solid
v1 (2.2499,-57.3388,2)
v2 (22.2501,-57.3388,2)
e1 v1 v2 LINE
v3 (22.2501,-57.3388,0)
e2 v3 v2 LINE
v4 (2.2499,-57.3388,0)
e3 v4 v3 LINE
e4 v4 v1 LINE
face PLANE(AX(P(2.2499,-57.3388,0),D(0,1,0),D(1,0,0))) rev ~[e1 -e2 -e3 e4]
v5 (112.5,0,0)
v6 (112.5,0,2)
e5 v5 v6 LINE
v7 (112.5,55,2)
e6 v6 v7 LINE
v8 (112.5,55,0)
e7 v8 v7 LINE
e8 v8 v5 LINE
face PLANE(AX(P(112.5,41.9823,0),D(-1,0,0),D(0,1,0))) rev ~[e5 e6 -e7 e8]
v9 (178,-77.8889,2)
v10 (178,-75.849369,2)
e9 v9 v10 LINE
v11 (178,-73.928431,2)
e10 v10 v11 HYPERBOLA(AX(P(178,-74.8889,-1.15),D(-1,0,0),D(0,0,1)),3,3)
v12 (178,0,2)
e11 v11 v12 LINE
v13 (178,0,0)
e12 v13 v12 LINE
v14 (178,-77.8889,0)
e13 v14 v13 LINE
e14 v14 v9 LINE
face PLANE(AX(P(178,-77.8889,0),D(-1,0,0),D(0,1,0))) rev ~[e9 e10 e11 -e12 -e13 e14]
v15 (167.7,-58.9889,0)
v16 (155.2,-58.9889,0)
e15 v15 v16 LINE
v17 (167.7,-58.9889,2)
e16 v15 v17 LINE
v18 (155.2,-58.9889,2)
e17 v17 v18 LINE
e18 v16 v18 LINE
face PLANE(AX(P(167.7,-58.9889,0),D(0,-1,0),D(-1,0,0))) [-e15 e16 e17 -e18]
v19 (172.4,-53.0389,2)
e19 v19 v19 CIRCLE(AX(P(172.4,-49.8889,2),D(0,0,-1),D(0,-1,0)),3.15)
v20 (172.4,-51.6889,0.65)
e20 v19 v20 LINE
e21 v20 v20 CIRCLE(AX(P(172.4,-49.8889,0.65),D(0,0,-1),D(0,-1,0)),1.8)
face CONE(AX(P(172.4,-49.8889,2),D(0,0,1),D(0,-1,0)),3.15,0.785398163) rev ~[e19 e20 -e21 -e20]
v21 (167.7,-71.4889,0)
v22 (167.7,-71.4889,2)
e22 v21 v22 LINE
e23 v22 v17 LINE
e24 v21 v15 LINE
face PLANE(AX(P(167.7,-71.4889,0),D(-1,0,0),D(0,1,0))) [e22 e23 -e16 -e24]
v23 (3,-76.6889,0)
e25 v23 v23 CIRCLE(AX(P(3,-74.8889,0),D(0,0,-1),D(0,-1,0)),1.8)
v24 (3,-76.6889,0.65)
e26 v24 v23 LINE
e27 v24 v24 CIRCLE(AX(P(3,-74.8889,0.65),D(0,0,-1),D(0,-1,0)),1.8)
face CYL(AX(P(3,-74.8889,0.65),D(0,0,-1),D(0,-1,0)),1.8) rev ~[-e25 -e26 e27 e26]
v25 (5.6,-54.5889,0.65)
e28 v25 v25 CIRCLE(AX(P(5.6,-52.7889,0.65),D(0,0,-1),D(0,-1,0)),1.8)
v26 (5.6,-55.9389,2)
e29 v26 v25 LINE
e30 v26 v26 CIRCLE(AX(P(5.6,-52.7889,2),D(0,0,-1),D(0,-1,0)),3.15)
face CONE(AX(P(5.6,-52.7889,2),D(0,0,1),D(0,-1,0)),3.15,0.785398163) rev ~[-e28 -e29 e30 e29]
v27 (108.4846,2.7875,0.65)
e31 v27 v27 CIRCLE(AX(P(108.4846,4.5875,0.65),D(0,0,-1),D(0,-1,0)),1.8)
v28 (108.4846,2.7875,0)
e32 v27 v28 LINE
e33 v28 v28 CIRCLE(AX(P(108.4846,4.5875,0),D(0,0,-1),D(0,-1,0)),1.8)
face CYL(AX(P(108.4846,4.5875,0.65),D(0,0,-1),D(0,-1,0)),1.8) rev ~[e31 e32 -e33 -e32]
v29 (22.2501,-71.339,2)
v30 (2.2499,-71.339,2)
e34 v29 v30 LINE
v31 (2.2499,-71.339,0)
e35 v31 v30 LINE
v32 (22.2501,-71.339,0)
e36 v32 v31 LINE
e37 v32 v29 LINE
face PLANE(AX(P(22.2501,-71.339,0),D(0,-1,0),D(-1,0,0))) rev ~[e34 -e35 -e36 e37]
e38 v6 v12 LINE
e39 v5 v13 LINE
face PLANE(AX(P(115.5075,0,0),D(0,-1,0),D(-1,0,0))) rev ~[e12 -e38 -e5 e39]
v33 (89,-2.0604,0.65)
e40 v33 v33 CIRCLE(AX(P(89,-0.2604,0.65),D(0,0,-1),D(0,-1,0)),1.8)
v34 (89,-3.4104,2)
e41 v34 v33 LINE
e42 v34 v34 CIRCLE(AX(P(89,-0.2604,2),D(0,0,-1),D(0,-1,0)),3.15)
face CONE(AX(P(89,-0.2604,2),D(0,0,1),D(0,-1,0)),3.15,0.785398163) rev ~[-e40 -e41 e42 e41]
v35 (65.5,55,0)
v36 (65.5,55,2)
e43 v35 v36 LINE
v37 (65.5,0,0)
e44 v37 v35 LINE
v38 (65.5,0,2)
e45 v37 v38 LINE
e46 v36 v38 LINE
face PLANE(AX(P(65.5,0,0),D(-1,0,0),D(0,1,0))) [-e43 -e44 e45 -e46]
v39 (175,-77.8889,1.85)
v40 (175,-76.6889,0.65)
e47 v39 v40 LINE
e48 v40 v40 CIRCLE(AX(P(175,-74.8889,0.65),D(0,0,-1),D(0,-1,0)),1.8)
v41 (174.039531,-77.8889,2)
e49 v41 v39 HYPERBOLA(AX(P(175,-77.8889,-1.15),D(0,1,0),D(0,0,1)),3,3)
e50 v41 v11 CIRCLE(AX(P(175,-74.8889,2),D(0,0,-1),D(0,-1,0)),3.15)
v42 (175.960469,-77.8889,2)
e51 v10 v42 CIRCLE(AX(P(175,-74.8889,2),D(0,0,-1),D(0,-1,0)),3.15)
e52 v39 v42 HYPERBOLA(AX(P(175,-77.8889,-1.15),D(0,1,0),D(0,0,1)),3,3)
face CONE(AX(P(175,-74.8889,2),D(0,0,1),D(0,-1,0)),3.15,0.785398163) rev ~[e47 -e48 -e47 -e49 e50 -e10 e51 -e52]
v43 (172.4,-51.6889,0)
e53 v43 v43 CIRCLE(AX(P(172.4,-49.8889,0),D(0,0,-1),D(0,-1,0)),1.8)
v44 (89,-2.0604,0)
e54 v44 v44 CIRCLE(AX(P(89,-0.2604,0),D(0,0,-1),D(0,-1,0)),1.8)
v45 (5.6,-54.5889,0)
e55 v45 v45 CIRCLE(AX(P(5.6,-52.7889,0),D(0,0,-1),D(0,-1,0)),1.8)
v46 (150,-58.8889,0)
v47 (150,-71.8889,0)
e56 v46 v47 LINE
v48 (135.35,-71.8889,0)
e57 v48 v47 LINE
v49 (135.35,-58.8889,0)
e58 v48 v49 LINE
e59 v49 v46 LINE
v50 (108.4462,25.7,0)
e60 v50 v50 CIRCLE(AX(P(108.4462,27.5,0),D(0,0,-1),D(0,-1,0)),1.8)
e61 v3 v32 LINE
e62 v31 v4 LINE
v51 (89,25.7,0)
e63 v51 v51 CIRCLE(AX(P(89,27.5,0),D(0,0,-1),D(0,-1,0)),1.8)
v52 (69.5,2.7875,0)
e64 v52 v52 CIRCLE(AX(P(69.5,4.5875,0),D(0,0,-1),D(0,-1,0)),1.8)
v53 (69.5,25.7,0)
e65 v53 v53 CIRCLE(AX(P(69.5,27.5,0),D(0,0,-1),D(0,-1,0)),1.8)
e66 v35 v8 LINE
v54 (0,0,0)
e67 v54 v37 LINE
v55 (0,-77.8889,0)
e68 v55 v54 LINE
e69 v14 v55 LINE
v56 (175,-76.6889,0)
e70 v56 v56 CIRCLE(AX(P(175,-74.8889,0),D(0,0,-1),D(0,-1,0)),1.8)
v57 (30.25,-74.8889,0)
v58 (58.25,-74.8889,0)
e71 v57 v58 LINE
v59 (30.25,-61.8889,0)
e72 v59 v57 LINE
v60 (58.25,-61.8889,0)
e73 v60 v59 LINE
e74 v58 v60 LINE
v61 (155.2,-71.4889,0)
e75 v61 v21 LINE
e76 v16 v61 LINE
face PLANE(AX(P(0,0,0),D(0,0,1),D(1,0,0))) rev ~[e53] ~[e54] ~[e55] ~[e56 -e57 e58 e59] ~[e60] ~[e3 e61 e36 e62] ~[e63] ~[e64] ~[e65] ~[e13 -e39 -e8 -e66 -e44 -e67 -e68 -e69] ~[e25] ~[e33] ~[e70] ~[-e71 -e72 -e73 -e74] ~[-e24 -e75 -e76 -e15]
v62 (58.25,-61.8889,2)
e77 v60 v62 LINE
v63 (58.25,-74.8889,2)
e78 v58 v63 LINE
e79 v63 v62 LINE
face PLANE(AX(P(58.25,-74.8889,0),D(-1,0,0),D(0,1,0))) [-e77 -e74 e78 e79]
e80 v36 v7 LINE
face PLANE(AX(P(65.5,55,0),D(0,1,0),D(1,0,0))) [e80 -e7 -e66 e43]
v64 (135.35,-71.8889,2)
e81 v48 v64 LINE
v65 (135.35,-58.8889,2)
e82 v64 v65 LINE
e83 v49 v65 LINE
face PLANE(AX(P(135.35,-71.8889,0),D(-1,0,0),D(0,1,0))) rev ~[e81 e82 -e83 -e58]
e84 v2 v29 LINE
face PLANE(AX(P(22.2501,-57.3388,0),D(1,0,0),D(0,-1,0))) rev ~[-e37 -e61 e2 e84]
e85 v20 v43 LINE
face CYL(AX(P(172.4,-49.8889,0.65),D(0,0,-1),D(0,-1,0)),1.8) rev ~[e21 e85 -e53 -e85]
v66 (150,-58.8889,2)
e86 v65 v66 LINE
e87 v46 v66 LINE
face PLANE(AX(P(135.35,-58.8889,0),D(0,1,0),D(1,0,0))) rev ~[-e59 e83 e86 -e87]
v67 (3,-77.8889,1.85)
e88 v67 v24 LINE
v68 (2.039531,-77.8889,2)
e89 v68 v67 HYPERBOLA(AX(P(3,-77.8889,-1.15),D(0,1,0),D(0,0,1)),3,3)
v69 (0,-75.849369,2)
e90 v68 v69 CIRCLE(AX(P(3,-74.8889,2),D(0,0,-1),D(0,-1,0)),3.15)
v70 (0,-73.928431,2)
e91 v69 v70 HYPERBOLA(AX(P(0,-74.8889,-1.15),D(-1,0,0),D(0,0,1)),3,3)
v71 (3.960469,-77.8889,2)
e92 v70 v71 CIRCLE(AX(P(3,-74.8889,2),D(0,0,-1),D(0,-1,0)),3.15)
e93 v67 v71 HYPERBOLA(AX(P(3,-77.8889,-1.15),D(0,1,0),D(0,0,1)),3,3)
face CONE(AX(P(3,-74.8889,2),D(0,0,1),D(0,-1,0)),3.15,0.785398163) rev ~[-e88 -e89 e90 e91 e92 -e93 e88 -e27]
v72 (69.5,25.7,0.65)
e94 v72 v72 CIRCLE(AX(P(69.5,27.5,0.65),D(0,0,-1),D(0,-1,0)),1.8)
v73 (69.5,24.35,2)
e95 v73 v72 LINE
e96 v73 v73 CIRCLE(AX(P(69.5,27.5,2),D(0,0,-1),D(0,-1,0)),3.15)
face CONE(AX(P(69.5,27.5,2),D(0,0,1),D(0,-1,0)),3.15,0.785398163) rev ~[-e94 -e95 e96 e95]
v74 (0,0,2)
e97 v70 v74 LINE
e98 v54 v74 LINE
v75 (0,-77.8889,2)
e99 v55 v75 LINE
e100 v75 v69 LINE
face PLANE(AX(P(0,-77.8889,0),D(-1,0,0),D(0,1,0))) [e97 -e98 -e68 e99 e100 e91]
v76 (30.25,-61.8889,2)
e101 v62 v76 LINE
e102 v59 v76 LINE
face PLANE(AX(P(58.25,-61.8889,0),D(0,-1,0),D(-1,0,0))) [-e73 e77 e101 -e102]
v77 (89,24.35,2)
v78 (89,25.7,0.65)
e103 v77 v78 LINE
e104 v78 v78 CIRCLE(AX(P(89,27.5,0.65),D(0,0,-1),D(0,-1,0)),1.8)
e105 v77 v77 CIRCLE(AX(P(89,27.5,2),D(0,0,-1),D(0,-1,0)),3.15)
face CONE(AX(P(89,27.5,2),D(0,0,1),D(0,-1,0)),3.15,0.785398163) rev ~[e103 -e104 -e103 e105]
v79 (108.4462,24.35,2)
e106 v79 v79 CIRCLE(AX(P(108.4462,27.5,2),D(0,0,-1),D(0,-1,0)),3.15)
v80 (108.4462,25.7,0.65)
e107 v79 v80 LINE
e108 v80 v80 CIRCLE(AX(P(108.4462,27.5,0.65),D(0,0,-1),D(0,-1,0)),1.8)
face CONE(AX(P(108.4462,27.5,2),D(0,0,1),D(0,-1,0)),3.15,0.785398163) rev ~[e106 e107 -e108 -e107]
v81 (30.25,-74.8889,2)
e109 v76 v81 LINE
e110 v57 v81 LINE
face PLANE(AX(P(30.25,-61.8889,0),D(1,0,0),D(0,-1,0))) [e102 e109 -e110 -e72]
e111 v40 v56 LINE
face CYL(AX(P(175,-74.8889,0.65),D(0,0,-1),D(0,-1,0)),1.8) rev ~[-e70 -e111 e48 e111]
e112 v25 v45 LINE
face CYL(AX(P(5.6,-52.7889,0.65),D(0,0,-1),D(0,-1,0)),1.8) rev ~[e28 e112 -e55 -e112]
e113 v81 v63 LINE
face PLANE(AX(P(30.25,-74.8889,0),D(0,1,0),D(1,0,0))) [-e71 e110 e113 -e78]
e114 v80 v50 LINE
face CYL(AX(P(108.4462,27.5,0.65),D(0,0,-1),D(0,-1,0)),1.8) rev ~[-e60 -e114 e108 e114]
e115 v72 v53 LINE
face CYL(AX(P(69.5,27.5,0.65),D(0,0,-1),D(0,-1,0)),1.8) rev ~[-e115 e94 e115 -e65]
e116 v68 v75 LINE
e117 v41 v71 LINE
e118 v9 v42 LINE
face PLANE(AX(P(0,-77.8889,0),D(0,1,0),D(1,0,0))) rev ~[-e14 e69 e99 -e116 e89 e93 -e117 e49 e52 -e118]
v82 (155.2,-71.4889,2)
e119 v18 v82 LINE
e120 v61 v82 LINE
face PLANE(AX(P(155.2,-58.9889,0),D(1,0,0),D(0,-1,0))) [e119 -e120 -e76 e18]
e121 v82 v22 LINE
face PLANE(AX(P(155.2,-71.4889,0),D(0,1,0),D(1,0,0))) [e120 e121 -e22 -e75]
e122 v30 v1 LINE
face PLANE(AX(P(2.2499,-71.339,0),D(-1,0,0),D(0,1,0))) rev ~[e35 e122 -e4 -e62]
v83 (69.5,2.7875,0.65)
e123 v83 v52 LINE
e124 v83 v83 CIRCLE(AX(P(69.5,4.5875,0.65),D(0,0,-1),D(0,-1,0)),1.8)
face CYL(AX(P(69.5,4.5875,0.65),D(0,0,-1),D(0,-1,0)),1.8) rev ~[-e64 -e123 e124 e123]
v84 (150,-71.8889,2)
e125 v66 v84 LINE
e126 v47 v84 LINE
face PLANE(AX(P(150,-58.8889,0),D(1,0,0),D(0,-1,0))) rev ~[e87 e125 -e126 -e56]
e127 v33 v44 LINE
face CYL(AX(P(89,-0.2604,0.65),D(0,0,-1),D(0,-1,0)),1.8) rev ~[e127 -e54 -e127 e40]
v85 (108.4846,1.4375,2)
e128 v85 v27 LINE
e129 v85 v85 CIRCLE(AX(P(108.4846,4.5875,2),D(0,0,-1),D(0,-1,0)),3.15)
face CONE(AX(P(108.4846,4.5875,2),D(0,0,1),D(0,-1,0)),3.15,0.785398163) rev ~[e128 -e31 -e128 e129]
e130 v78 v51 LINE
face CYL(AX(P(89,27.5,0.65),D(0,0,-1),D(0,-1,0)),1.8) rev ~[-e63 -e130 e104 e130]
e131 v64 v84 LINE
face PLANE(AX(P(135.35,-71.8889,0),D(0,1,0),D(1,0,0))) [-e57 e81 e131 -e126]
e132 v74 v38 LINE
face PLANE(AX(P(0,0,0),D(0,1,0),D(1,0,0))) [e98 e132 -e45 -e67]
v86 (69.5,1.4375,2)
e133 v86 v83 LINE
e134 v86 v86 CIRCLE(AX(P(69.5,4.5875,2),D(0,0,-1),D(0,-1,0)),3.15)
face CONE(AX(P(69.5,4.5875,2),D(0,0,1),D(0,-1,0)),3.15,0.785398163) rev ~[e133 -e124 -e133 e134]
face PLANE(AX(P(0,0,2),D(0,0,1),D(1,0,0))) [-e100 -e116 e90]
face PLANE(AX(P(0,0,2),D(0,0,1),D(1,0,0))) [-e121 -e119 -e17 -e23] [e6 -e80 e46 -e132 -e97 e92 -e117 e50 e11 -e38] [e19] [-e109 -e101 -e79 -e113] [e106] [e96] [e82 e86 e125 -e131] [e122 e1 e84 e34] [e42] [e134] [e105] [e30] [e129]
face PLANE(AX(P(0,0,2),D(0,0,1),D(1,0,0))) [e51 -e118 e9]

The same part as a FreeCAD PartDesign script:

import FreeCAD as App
import Part
import Sketcher
Q = App.Units.Quantity

doc = App.newDocument("Part")
params = doc.addObject("Spreadsheet::Sheet", "Params")
for row, (alias, value) in enumerate([
    ("sketch1_width", "178 mm"),
    ("sketch1_width2", "47 mm"),
    ("sketch1_width3", "28 mm"),
    ("sketch1_height", "55 mm"),
    ("sketch1_height2", "13 mm"),
    ("pad1_length", "2 mm"),
    ("sketch2_diameter", "3.6 mm"),
    ("hole_diameter", "3.6 mm"),
    ("hole_csink_diameter", "6.3 mm"),
], start=1):
    params.set(f"A{row}", alias)
    params.set(f"B{row}", "=" + value)
    params.setAlias(f"B{row}", alias)

body = doc.addObject("PartDesign::Body", "Body")

# Sketch on XY plane
sketch1 = body.newObject("Sketcher::SketchObject", "Sketch")
sketch1.AttachmentSupport = (doc.getObject("XY_Plane"), [""])
sketch1.MapMode = "FlatFace"
sketch1.addGeometry(Part.LineSegment(App.Vector(0, -78, 0), App.Vector(178, -78, 0)), False)
sketch1.addGeometry(Part.LineSegment(App.Vector(178, -78, 0), App.Vector(178, 0, 0)), False)
sketch1.addGeometry(Part.LineSegment(App.Vector(178, 0, 0), App.Vector(112, 0, 0)), False)
sketch1.addGeometry(Part.LineSegment(App.Vector(112, 0, 0), App.Vector(112, 55, 0)), False)
sketch1.addGeometry(Part.LineSegment(App.Vector(112, 55, 0), App.Vector(66, 55, 0)), False)
sketch1.addGeometry(Part.LineSegment(App.Vector(66, 55, 0), App.Vector(66, 0, 0)), False)
sketch1.addGeometry(Part.LineSegment(App.Vector(66, 0, 0), App.Vector(0, 0, 0)), False)
sketch1.addGeometry(Part.LineSegment(App.Vector(0, 0, 0), App.Vector(0, -78, 0)), False)
sketch1.addGeometry(Part.LineSegment(App.Vector(150, -72, 0), App.Vector(135, -72, 0)), False)
sketch1.addGeometry(Part.LineSegment(App.Vector(135, -72, 0), App.Vector(135, -59, 0)), False)
sketch1.addGeometry(Part.LineSegment(App.Vector(135, -59, 0), App.Vector(150, -59, 0)), False)
sketch1.addGeometry(Part.LineSegment(App.Vector(150, -59, 0), App.Vector(150, -72, 0)), False)
sketch1.addGeometry(Part.LineSegment(App.Vector(22, -71, 0), App.Vector(2, -71, 0)), False)
sketch1.addGeometry(Part.LineSegment(App.Vector(2, -71, 0), App.Vector(2, -57, 0)), False)
sketch1.addGeometry(Part.LineSegment(App.Vector(2, -57, 0), App.Vector(22, -57, 0)), False)
sketch1.addGeometry(Part.LineSegment(App.Vector(22, -57, 0), App.Vector(22, -71, 0)), False)
sketch1.addGeometry(Part.LineSegment(App.Vector(30, -75, 0), App.Vector(30, -62, 0)), False)
sketch1.addGeometry(Part.LineSegment(App.Vector(30, -62, 0), App.Vector(58, -62, 0)), False)
sketch1.addGeometry(Part.LineSegment(App.Vector(58, -62, 0), App.Vector(58, -75, 0)), False)
sketch1.addGeometry(Part.LineSegment(App.Vector(58, -75, 0), App.Vector(30, -75, 0)), False)
sketch1.addGeometry(Part.LineSegment(App.Vector(168, -59, 0), App.Vector(168, -71, 0)), False)
sketch1.addGeometry(Part.LineSegment(App.Vector(168, -71, 0), App.Vector(155, -71, 0)), False)
sketch1.addGeometry(Part.LineSegment(App.Vector(155, -71, 0), App.Vector(155, -59, 0)), False)
sketch1.addGeometry(Part.LineSegment(App.Vector(155, -59, 0), App.Vector(168, -59, 0)), False)
sketch1.addConstraint(Sketcher.Constraint("Coincident", 0, 2, 1, 1))
sketch1.addConstraint(Sketcher.Constraint("Coincident", 1, 2, 2, 1))
sketch1.addConstraint(Sketcher.Constraint("Coincident", 2, 2, 3, 1))
sketch1.addConstraint(Sketcher.Constraint("Coincident", 3, 2, 4, 1))
sketch1.addConstraint(Sketcher.Constraint("Coincident", 4, 2, 5, 1))
sketch1.addConstraint(Sketcher.Constraint("Coincident", 5, 2, 6, 1))
sketch1.addConstraint(Sketcher.Constraint("Coincident", 6, 2, 7, 1))
sketch1.addConstraint(Sketcher.Constraint("Coincident", 7, 2, 0, 1))
sketch1.addConstraint(Sketcher.Constraint("Coincident", 8, 2, 9, 1))
sketch1.addConstraint(Sketcher.Constraint("Coincident", 9, 2, 10, 1))
sketch1.addConstraint(Sketcher.Constraint("Coincident", 10, 2, 11, 1))
sketch1.addConstraint(Sketcher.Constraint("Coincident", 11, 2, 8, 1))
sketch1.addConstraint(Sketcher.Constraint("Coincident", 12, 2, 13, 1))
sketch1.addConstraint(Sketcher.Constraint("Coincident", 13, 2, 14, 1))
sketch1.addConstraint(Sketcher.Constraint("Coincident", 14, 2, 15, 1))
sketch1.addConstraint(Sketcher.Constraint("Coincident", 15, 2, 12, 1))
sketch1.addConstraint(Sketcher.Constraint("Coincident", 16, 2, 17, 1))
sketch1.addConstraint(Sketcher.Constraint("Coincident", 17, 2, 18, 1))
sketch1.addConstraint(Sketcher.Constraint("Coincident", 18, 2, 19, 1))
sketch1.addConstraint(Sketcher.Constraint("Coincident", 19, 2, 16, 1))
sketch1.addConstraint(Sketcher.Constraint("Coincident", 20, 2, 21, 1))
sketch1.addConstraint(Sketcher.Constraint("Coincident", 21, 2, 22, 1))
sketch1.addConstraint(Sketcher.Constraint("Coincident", 22, 2, 23, 1))
sketch1.addConstraint(Sketcher.Constraint("Coincident", 23, 2, 20, 1))
sketch1.addConstraint(Sketcher.Constraint("Horizontal", 0))
sketch1.addConstraint(Sketcher.Constraint("Vertical", 1))
sketch1.addConstraint(Sketcher.Constraint("Horizontal", 2))
sketch1.addConstraint(Sketcher.Constraint("Vertical", 3))
sketch1.addConstraint(Sketcher.Constraint("Horizontal", 4))
sketch1.addConstraint(Sketcher.Constraint("Vertical", 5))
sketch1.addConstraint(Sketcher.Constraint("Horizontal", 6))
sketch1.addConstraint(Sketcher.Constraint("Vertical", 7))
sketch1.addConstraint(Sketcher.Constraint("Horizontal", 8))
sketch1.addConstraint(Sketcher.Constraint("Vertical", 9))
sketch1.addConstraint(Sketcher.Constraint("Horizontal", 10))
sketch1.addConstraint(Sketcher.Constraint("Vertical", 11))
sketch1.addConstraint(Sketcher.Constraint("Horizontal", 12))
sketch1.addConstraint(Sketcher.Constraint("Vertical", 13))
sketch1.addConstraint(Sketcher.Constraint("Horizontal", 14))
sketch1.addConstraint(Sketcher.Constraint("Vertical", 15))
sketch1.addConstraint(Sketcher.Constraint("Vertical", 16))
sketch1.addConstraint(Sketcher.Constraint("Horizontal", 17))
sketch1.addConstraint(Sketcher.Constraint("Vertical", 18))
sketch1.addConstraint(Sketcher.Constraint("Horizontal", 19))
sketch1.addConstraint(Sketcher.Constraint("Vertical", 20))
sketch1.addConstraint(Sketcher.Constraint("Horizontal", 21))
sketch1.addConstraint(Sketcher.Constraint("Vertical", 22))
sketch1.addConstraint(Sketcher.Constraint("Horizontal", 23))
sketch1.addConstraint(Sketcher.Constraint("Coincident", 6, 2, -1, 1))
sketch1.addConstraint(Sketcher.Constraint("PointOnObject", 1, 2, -1))
sketch1.addConstraint(Sketcher.Constraint("Equal", 2, 6))
sketch1.addConstraint(Sketcher.Constraint("Equal", 11, 16))
sketch1.addConstraint(Sketcher.Constraint("Equal", 23, 20))
sketch1.addConstraint(Sketcher.Constraint("DistanceX", 0, 1, 0, 2, Q("178 mm")))
sketch1.addConstraint(Sketcher.Constraint("DistanceX", 4, 2, 4, 1, Q("47 mm")))
sketch1.addConstraint(Sketcher.Constraint("DistanceX", 17, 1, 17, 2, Q("28 mm")))
sketch1.addConstraint(Sketcher.Constraint("DistanceY", 3, 1, 3, 2, Q("55 mm")))
sketch1.addConstraint(Sketcher.Constraint("DistanceY", 9, 1, 9, 2, Q("13 mm")))
sketch1.addConstraint(Sketcher.Constraint("DistanceX", 21, 2, 21, 1, Q("12.5 mm")))
sketch1.addConstraint(Sketcher.Constraint("DistanceX", -1, 1, 10, 2, Q("150 mm")))
sketch1.addConstraint(Sketcher.Constraint("DistanceY", 0, 2, 8, 2, Q("6 mm")))
sketch1.addConstraint(Sketcher.Constraint("DistanceX", 14, 2, 16, 2, Q("8 mm")))
sketch1.addConstraint(Sketcher.Constraint("DistanceX", 13, 2, 16, 2, Q("28 mm")))
sketch1.addConstraint(Sketcher.Constraint("DistanceY", 7, 2, 16, 2, Q("16 mm")))
sketch1.addConstraint(Sketcher.Constraint("DistanceX", 8, 2, 8, 1, Q("14.65 mm")))
sketch1.addConstraint(Sketcher.Constraint("DistanceX", -1, 1, 20, 2, Q("167.7 mm")))
sketch1.addConstraint(Sketcher.Constraint("DistanceX", 12, 2, 8, 2, Q("133.1 mm")))
sketch1.addConstraint(Sketcher.Constraint("DistanceY", 0, 2, 20, 2, Q("6.4 mm")))
sketch1.addConstraint(Sketcher.Constraint("DistanceY", 1, 1, 1, 2, Q("77.889 mm")))
sketch1.addConstraint(Sketcher.Constraint("DistanceY", 7, 2, 12, 2, Q("6.55 mm")))
sketch1.addConstraint(Sketcher.Constraint("DistanceY", 7, 2, 13, 2, Q("20.55 mm")))
sketch1.setExpression("Constraints[53]", "Params.sketch1_width")
sketch1.setExpression("Constraints[54]", "Params.sketch1_width2")
sketch1.setExpression("Constraints[55]", "Params.sketch1_width3")
sketch1.setExpression("Constraints[56]", "Params.sketch1_height")
sketch1.setExpression("Constraints[57]", "Params.sketch1_height2")
pad1 = body.newObject("PartDesign::Pad", "Pad")
pad1.Profile = sketch1
pad1.setExpression("Length", "Params.pad1_length")

# Sketch on XY plane
sketch2 = body.newObject("Sketcher::SketchObject", "Sketch001")
sketch2.AttachmentSupport = (doc.getObject("XY_Plane"), [""])
sketch2.MapMode = "FlatFace"
sketch2.AttachmentOffset = App.Placement(App.Vector(0, 0, 2), App.Rotation())
sketch2.addGeometry(Part.Circle(App.Vector(3, -74.9, 0), App.Vector(0, 0, 1), 1.8), False)
sketch2.addGeometry(Part.Circle(App.Vector(5.6, -52.8, 0), App.Vector(0, 0, 1), 1.8), False)
sketch2.addGeometry(Part.Circle(App.Vector(175, -74.9, 0), App.Vector(0, 0, 1), 1.8), False)
sketch2.addGeometry(Part.Circle(App.Vector(172.4, -49.9, 0), App.Vector(0, 0, 1), 1.8), False)
sketch2.addGeometry(Part.Circle(App.Vector(89, -0.3, 0), App.Vector(0, 0, 1), 1.8), False)
sketch2.addGeometry(Part.Circle(App.Vector(69.5, 4.6, 0), App.Vector(0, 0, 1), 1.8), False)
sketch2.addGeometry(Part.Circle(App.Vector(108.5, 4.6, 0), App.Vector(0, 0, 1), 1.8), False)
sketch2.addGeometry(Part.Circle(App.Vector(89, 27.5, 0), App.Vector(0, 0, 1), 1.8), False)
sketch2.addGeometry(Part.Circle(App.Vector(69.5, 27.5, 0), App.Vector(0, 0, 1), 1.8), False)
sketch2.addGeometry(Part.Circle(App.Vector(108.4, 27.5, 0), App.Vector(0, 0, 1), 1.8), False)
sketch2.addConstraint(Sketcher.Constraint("Equal", 0, 1))
sketch2.addConstraint(Sketcher.Constraint("Equal", 1, 2))
sketch2.addConstraint(Sketcher.Constraint("Equal", 2, 3))
sketch2.addConstraint(Sketcher.Constraint("Equal", 3, 4))
sketch2.addConstraint(Sketcher.Constraint("Equal", 4, 5))
sketch2.addConstraint(Sketcher.Constraint("Equal", 5, 6))
sketch2.addConstraint(Sketcher.Constraint("Equal", 6, 7))
sketch2.addConstraint(Sketcher.Constraint("Equal", 7, 8))
sketch2.addConstraint(Sketcher.Constraint("Equal", 8, 9))
sketch2.addConstraint(Sketcher.Constraint("Horizontal", 0, 3, 2, 3))
sketch2.addConstraint(Sketcher.Constraint("Horizontal", 5, 3, 6, 3))
sketch2.addConstraint(Sketcher.Constraint("Horizontal", 7, 3, 8, 3))
sketch2.addConstraint(Sketcher.Constraint("Horizontal", 8, 3, 9, 3))
sketch2.addConstraint(Sketcher.Constraint("Vertical", 4, 3, 7, 3))
sketch2.addConstraint(Sketcher.Constraint("Vertical", 5, 3, 8, 3))
sketch2.addConstraint(Sketcher.Constraint("Diameter", 0, Q("3.6 mm")))
sketch2.addConstraint(Sketcher.Constraint("DistanceX", -1, 1, 0, 3, Q("3 mm")))
sketch2.addConstraint(Sketcher.Constraint("DistanceX", -1, 1, 2, 3, Q("175 mm")))
sketch2.addConstraint(Sketcher.Constraint("DistanceX", -1, 1, 4, 3, Q("89 mm")))
sketch2.addConstraint(Sketcher.Constraint("DistanceY", 2, 3, 3, 3, Q("25 mm")))
sketch2.addConstraint(Sketcher.Constraint("DistanceX", -1, 1, 1, 3, Q("5.6 mm")))
sketch2.addConstraint(Sketcher.Constraint("DistanceX", -1, 1, 3, 3, Q("172.4 mm")))
sketch2.addConstraint(Sketcher.Constraint("DistanceX", -1, 1, 5, 3, Q("69.5 mm")))
sketch2.addConstraint(Sketcher.Constraint("DistanceY", -1, 1, 7, 3, Q("27.5 mm")))
sketch2.addConstraint(Sketcher.Constraint("DistanceY", 0, 3, 1, 3, Q("22.1 mm")))
sketch2.addConstraint(Sketcher.Constraint("DistanceY", 0, 3, -1, 1, Q("74.889 mm")))
sketch2.addConstraint(Sketcher.Constraint("DistanceY", 4, 3, 5, 3, Q("4.848 mm")))
sketch2.addConstraint(Sketcher.Constraint("DistanceY", 4, 3, -1, 1, Q("0.2604 mm")))
sketch2.addConstraint(Sketcher.Constraint("DistanceX", -1, 1, 6, 3, Q("108.4846 mm")))
sketch2.addConstraint(Sketcher.Constraint("DistanceX", -1, 1, 9, 3, Q("108.4462 mm")))
sketch2.setExpression("Constraints[15]", "Params.sketch2_diameter")
doc.recompute()
hole = body.newObject("PartDesign::Hole", "Hole")
hole.Profile = sketch2
hole.ThreadType = "None"
hole.setExpression("Diameter", "Params.hole_diameter")
hole.DepthType = "ThroughAll"
hole.HoleCutType = "Countersink"
hole.setExpression("HoleCutDiameter", "Params.hole_csink_diameter")
hole.HoleCutCountersinkAngle = 90

doc.recompute()
